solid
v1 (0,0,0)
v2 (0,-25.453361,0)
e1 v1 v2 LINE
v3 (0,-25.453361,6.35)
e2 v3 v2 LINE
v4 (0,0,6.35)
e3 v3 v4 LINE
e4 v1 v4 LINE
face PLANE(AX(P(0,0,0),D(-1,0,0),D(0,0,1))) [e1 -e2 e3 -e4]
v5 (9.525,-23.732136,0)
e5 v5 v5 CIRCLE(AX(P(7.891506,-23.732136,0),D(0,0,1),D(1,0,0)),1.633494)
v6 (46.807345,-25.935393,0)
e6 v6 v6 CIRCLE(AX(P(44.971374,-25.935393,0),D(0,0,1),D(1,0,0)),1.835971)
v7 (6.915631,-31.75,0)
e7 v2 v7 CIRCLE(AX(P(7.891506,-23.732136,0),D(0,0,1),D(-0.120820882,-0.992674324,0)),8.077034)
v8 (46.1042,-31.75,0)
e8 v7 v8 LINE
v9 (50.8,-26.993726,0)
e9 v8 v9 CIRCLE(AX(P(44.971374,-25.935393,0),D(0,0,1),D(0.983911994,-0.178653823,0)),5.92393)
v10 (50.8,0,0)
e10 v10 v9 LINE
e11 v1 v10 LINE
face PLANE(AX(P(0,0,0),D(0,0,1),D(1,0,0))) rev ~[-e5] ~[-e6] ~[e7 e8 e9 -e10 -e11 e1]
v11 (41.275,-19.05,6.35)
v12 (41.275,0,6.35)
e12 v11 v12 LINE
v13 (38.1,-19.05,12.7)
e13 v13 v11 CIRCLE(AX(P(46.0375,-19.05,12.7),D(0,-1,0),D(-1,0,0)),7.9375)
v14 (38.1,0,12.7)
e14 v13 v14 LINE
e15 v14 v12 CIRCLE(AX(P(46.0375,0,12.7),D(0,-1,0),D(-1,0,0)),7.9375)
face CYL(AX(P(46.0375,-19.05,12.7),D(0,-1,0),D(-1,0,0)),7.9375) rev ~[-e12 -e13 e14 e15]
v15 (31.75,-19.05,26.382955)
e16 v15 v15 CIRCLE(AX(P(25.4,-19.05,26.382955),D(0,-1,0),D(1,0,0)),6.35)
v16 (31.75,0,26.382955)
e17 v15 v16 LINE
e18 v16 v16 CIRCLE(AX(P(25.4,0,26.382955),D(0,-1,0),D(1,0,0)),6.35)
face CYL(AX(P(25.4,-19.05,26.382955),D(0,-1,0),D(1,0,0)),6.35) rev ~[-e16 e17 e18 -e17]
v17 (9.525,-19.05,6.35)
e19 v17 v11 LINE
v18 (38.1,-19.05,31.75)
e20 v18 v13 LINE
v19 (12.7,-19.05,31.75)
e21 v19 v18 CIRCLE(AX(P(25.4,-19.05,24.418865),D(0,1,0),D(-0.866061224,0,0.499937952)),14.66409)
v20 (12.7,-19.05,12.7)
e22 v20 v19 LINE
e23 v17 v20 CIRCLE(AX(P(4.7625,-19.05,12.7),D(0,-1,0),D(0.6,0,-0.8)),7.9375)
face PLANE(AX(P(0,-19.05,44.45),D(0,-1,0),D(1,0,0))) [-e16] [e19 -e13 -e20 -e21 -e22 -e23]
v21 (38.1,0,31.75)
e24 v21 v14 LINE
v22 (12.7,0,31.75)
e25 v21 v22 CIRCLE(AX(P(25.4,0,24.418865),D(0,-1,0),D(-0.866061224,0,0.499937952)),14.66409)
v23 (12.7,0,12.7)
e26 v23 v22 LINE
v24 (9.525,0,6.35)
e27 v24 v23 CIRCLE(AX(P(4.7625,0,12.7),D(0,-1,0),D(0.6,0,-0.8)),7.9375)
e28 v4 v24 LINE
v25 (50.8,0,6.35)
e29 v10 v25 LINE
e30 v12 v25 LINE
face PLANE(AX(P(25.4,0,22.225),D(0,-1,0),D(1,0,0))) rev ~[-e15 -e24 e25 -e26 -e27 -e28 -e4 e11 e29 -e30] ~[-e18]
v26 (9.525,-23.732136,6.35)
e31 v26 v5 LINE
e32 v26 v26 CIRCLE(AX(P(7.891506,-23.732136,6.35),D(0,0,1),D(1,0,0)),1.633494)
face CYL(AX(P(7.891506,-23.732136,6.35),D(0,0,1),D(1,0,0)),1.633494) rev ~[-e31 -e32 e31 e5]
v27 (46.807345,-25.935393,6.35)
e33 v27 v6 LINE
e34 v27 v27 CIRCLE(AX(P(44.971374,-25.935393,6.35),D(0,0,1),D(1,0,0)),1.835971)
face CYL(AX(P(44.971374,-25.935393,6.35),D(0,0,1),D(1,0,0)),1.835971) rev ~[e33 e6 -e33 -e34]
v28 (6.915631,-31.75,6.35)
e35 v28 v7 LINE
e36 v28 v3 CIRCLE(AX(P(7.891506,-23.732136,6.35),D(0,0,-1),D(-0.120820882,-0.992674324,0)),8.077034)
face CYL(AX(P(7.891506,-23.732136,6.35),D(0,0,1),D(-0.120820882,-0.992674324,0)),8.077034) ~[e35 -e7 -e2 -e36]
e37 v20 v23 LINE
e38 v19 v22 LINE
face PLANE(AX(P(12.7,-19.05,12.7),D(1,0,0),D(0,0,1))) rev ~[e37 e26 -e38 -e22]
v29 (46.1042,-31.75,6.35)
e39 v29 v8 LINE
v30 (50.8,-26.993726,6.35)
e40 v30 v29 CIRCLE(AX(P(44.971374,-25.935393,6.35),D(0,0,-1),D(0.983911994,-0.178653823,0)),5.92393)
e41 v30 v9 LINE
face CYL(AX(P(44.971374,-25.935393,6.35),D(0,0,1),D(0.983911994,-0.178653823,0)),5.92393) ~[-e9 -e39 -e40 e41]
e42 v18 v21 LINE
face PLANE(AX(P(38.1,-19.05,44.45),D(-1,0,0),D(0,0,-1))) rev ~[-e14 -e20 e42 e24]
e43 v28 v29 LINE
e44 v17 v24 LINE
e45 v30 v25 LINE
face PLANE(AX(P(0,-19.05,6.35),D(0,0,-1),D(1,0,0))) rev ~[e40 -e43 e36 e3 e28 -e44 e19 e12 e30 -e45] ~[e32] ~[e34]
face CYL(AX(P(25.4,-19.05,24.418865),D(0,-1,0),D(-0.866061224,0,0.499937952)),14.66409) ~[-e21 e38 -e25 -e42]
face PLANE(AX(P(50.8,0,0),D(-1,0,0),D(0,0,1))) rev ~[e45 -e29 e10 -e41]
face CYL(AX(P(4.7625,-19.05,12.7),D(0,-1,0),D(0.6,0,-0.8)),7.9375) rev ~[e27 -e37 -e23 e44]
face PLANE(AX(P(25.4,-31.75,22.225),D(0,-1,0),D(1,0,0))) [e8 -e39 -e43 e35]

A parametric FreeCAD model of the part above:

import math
import FreeCAD as App
import Part
import Sketcher
from FreeCAD import Vector
Q = App.Units.Quantity

doc = App.newDocument("Part")
body = doc.addObject("PartDesign::Body", "Body")

# Sketch on XZ plane
sketch1 = body.newObject("Sketcher::SketchObject", "Sketch")
sketch1.AttachmentSupport = (doc.getObject("XZ_Plane"), [""])
sketch1.MapMode = "FlatFace"
sketch1.addGeometry([
    Part.LineSegment(Vector(0, 44, 0), Vector(0, 0, 0)),
    Part.LineSegment(Vector(0, 0, 0), Vector(51, 0, 0)),
    Part.LineSegment(Vector(51, 0, 0), Vector(51, 44, 0)),
    Part.LineSegment(Vector(51, 44, 0), Vector(0, 44, 0)),
], False)
sketch1.addConstraint([
    Sketcher.Constraint("Coincident", 0, 2, 1, 1),
    Sketcher.Constraint("Coincident", 1, 2, 2, 1),
    Sketcher.Constraint("Coincident", 2, 2, 3, 1),
    Sketcher.Constraint("Coincident", 3, 2, 0, 1),
    Sketcher.Constraint("Vertical", 0),
    Sketcher.Constraint("Horizontal", 1),
    Sketcher.Constraint("Vertical", 2),
    Sketcher.Constraint("Horizontal", 3),
    Sketcher.Constraint("Coincident", 0, 2, -1, 1),
    Sketcher.Constraint("DistanceX", 1, 1, 1, 2, Q("2 in")),
    Sketcher.Constraint("DistanceY", 0, 2, 0, 1, Q("1.75 in")),
])
pad1 = body.newObject("PartDesign::Pad", "Pad")
pad1.Profile = sketch1
pad1.Length = Q("1.25 in")

# Sketch on XY plane
sketch2 = body.newObject("Sketcher::SketchObject", "Sketch001")
sketch2.AttachmentSupport = (doc.getObject("XY_Plane"), [""])
sketch2.MapMode = "FlatFace"
sketch2.AttachmentOffset = App.Placement(Vector(0, 0, 1.75 * 25.4), App.Rotation())
sketch2.addGeometry([
    Part.LineSegment(Vector(0, -19, 0), Vector(0, -32, 0)),
    Part.LineSegment(Vector(0, -32, 0), Vector(51, -32, 0)),
    Part.LineSegment(Vector(51, -32, 0), Vector(51, -19, 0)),
    Part.LineSegment(Vector(51, -19, 0), Vector(0, -19, 0)),
], False)
sketch2.addConstraint([
    Sketcher.Constraint("Coincident", 0, 2, 1, 1),
    Sketcher.Constraint("Coincident", 1, 2, 2, 1),
    Sketcher.Constraint("Coincident", 2, 2, 3, 1),
    Sketcher.Constraint("Coincident", 3, 2, 0, 1),
    Sketcher.Constraint("Vertical", 0),
    Sketcher.Constraint("Horizontal", 1),
    Sketcher.Constraint("Vertical", 2),
    Sketcher.Constraint("Horizontal", 3),
    Sketcher.Constraint("PointOnObject", 0, 2, -2),
    Sketcher.Constraint("DistanceX", 1, 1, 1, 2, Q("2 in")),
    Sketcher.Constraint("DistanceY", 0, 2, 0, 1, Q("0.5 in")),
    Sketcher.Constraint("DistanceY", 0, 2, -1, 1, Q("1.25 in")),
])
pocket1 = body.newObject("PartDesign::Pocket", "Pocket")
pocket1.Profile = sketch2
pocket1.Length = Q("1.5 in")

# Sketch on XZ plane
sketch3 = body.newObject("Sketcher::SketchObject", "Sketch002")
sketch3.AttachmentSupport = (doc.getObject("XZ_Plane"), [""])
sketch3.MapMode = "FlatFace"
sketch3.AttachmentOffset = App.Placement(Vector(0, 0, 0.75 * 25.4), App.Rotation())
sketch3.addGeometry([
    Part.LineSegment(Vector(13, 13, 0), Vector(13, 44, 0)),  # 0
    Part.LineSegment(Vector(13, 44, 0), Vector(0, 44, 0)),  # 1
    Part.LineSegment(Vector(0, 44, 0), Vector(0, 6, 0)),  # 2
    Part.LineSegment(Vector(0, 6, 0), Vector(10, 6, 0)),  # 3
    Part.ArcOfCircle(Part.Circle(Vector(5, 13, 0), Vector(0, 0, 1), 8), math.radians(-53), math.radians(0)),  # 4
    Part.LineSegment(Vector(51, 44, 0), Vector(38, 44, 0)),  # 5
    Part.LineSegment(Vector(38, 44, 0), Vector(38, 13, 0)),  # 6
    Part.ArcOfCircle(Part.Circle(Vector(46, 13, 0), Vector(0, 0, 1), 8), math.radians(180), math.radians(233)),  # 7
    Part.LineSegment(Vector(41, 6, 0), Vector(51, 6, 0)),  # 8
    Part.LineSegment(Vector(51, 6, 0), Vector(51, 44, 0)),  # 9
], False)
sketch3.addConstraint([
    Sketcher.Constraint("Coincident", 0, 2, 1, 1),
    Sketcher.Constraint("Coincident", 1, 2, 2, 1),
    Sketcher.Constraint("Coincident", 2, 2, 3, 1),
    Sketcher.Constraint("Coincident", 3, 2, 4, 1),
    Sketcher.Constraint("Tangent", 4, 2, 0, 1),
    Sketcher.Constraint("Coincident", 5, 2, 6, 1),
    Sketcher.Constraint("Tangent", 6, 2, 7, 1),
    Sketcher.Constraint("Coincident", 7, 2, 8, 1),
    Sketcher.Constraint("Coincident", 8, 2, 9, 1),
    Sketcher.Constraint("Coincident", 9, 2, 5, 1),
    Sketcher.Constraint("Vertical", 0),
    Sketcher.Constraint("Horizontal", 1),
    Sketcher.Constraint("Vertical", 2),
    Sketcher.Constraint("Horizontal", 3),
    Sketcher.Constraint("Horizontal", 5),
    Sketcher.Constraint("Vertical", 6),
    Sketcher.Constraint("Horizontal", 8),
    Sketcher.Constraint("Vertical", 9),
    Sketcher.Constraint("Equal", 4, 7),
    Sketcher.Constraint("PointOnObject", 1, 2, -2),
    Sketcher.Constraint("Horizontal", 4, 3, 7, 3),
    Sketcher.Constraint("Horizontal", 1, 2, 5, 2),
    Sketcher.Constraint("Horizontal", 3, 2, 7, 2),
    Sketcher.Constraint("Equal", 1, 5),
    Sketcher.Constraint("DistanceX", 1, 2, 1, 1, Q("0.5 in")),
    Sketcher.Constraint("DistanceY", 2, 2, 2, 1, Q("1.5 in")),
    Sketcher.Constraint("DistanceX", -1, 1, 8, 2, Q("2 in")),
    Sketcher.Constraint("Radius", 4, Q("0.3125 in")),
    Sketcher.Constraint("DistanceY", 0, 1, 0, 2, Q("1.25 in")),
    Sketcher.Constraint("DistanceY", -1, 1, 4, 3, Q("0.5 in")),
])
pocket2 = body.newObject("PartDesign::Pocket", "Pocket001")
pocket2.Profile = sketch3
pocket2.Length = Q("1 in")

# Sketch on XZ plane
sketch4 = body.newObject("Sketcher::SketchObject", "Sketch003")
sketch4.AttachmentSupport = (doc.getObject("XZ_Plane"), [""])
sketch4.MapMode = "FlatFace"
sketch4.AttachmentOffset = App.Placement(Vector(0, 0, 0.75 * 25.4), App.Rotation())
sketch4.addGeometry([
    Part.ArcOfCircle(Part.Circle(Vector(25, 24, 0), Vector(0, 0, 1), 15), math.radians(30), math.radians(150)),
    Part.LineSegment(Vector(38, 32, 0), Vector(38, 44, 0)),
    Part.LineSegment(Vector(38, 44, 0), Vector(13, 44, 0)),
    Part.LineSegment(Vector(13, 44, 0), Vector(13, 32, 0)),
], False)
sketch4.addConstraint([
    Sketcher.Constraint("Coincident", 0, 1, 1, 1),
    Sketcher.Constraint("Coincident", 1, 2, 2, 1),
    Sketcher.Constraint("Coincident", 2, 2, 3, 1),
    Sketcher.Constraint("Coincident", 3, 2, 0, 2),
    Sketcher.Constraint("Vertical", 1),
    Sketcher.Constraint("Horizontal", 2),
    Sketcher.Constraint("Vertical", 3),
    Sketcher.Constraint("Horizontal", 0, 1, 3, 2),
    Sketcher.Constraint("DistanceX", 2, 2, 2, 1, Q("1 in")),
    Sketcher.Constraint("DistanceY", 1, 1, 1, 2, Q("0.5 in")),
    Sketcher.Constraint("DistanceX", -1, 1, 0, 3, Q("1 in")),
    Sketcher.Constraint("DistanceY", -1, 1, 0, 1, Q("1.25 in")),
    Sketcher.Constraint("Radius", 0, Q("14.66409 mm")),
])
pocket3 = body.newObject("PartDesign::Pocket", "Pocket002")
pocket3.Profile = sketch4
pocket3.Length = Q("1 in")

# Sketch on XZ plane
sketch5 = body.newObject("Sketcher::SketchObject", "Sketch004")
sketch5.AttachmentSupport = (doc.getObject("XZ_Plane"), [""])
sketch5.MapMode = "FlatFace"
sketch5.AttachmentOffset = App.Placement(Vector(0, 0, 0.75 * 25.4), App.Rotation())
sketch5.addGeometry(Part.Circle(Vector(25, 26, 0), Vector(0, 0, 1), 6), False)
sketch5.addConstraint([
    Sketcher.Constraint("Diameter", 0, Q("0.5 in")),
    Sketcher.Constraint("DistanceX", -1, 1, 0, 3, Q("1 in")),
    Sketcher.Constraint("DistanceY", -1, 1, 0, 3, Q("26.382955 mm")),
])
pocket4 = body.newObject("PartDesign::Pocket", "Pocket003")
pocket4.Profile = sketch5
pocket4.Length = Q("1 in")

# Sketch on XY plane
sketch6 = body.newObject("Sketcher::SketchObject", "Sketch005")
sketch6.AttachmentSupport = (doc.getObject("XY_Plane"), [""])
sketch6.MapMode = "FlatFace"
sketch6.AttachmentOffset = App.Placement(Vector(0, 0, 0.25 * 25.4), App.Rotation())
sketch6.addGeometry([
    Part.ArcOfCircle(Part.Circle(Vector(7.9, -23.7, 0), Vector(0, 0, 1), 8.1), math.radians(-168), math.radians(-97)),  # 0
    Part.LineSegment(Vector(0, -25.5, 0), Vector(0, -31.8, 0)),  # 1
    Part.LineSegment(Vector(0, -31.8, 0), Vector(6.9, -31.8, 0)),  # 2
    Part.ArcOfCircle(Part.Circle(Vector(45, -25.9, 0), Vector(0, 0, 1), 5.9), math.radians(-79), math.radians(-10)),  # 3
    Part.LineSegment(Vector(46.1, -31.8, 0), Vector(50.8, -31.8, 0)),  # 4
    Part.LineSegment(Vector(50.8, -31.8, 0), Vector(50.8, -27, 0)),  # 5
], False)
sketch6.addConstraint([
    Sketcher.Constraint("Coincident", 0, 1, 1, 1),
    Sketcher.Constraint("Coincident", 1, 2, 2, 1),
    Sketcher.Constraint("Coincident", 2, 2, 0, 2),
    Sketcher.Constraint("Coincident", 3, 1, 4, 1),
    Sketcher.Constraint("Coincident", 4, 2, 5, 1),
    Sketcher.Constraint("Coincident", 5, 2, 3, 2),
    Sketcher.Constraint("Vertical", 1),
    Sketcher.Constraint("Horizontal", 2),
    Sketcher.Constraint("Horizontal", 4),
    Sketcher.Constraint("Vertical", 5),
    Sketcher.Constraint("PointOnObject", 0, 1, -2),
    Sketcher.Constraint("Horizontal", 2, 2, 3, 1),
    Sketcher.Constraint("DistanceX", -1, 1, 4, 2, Q("2 in")),
    Sketcher.Constraint("DistanceY", 1, 2, -1, 1, Q("1.25 in")),
    Sketcher.Constraint("Radius", 3, Q("5.92393 mm")),
    Sketcher.Constraint("DistanceX", 4, 1, 4, 2, Q("4.6958 mm")),
    Sketcher.Constraint("Radius", 0, Q("8.077034 mm")),
    Sketcher.Constraint("DistanceX", 2, 1, 2, 2, Q("6.915631 mm")),
    Sketcher.Constraint("DistanceY", 1, 2, 1, 1, Q("6.296639 mm")),
    Sketcher.Constraint("DistanceY", 5, 1, 5, 2, Q("4.756274 mm")),
])
pocket5 = body.newObject("PartDesign::Pocket", "Pocket004")
pocket5.Profile = sketch6
pocket5.Length = Q("1 in")

# Sketch on XY plane
sketch7 = body.newObject("Sketcher::SketchObject", "Sketch006")
sketch7.AttachmentSupport = (doc.getObject("XY_Plane"), [""])
sketch7.MapMode = "FlatFace"
sketch7.AttachmentOffset = App.Placement(Vector(0, 0, 0.25 * 25.4), App.Rotation())
sketch7.addGeometry([
    Part.Circle(Vector(45, -25.9, 0), Vector(0, 0, 1), 1.8),
    Part.Circle(Vector(7.9, -23.7, 0), Vector(0, 0, 1), 1.6),
], False)
sketch7.addConstraint([
    Sketcher.Constraint("Diameter", 0, Q("3.671941 mm")),
    Sketcher.Constraint("Diameter", 1, Q("3.266989 mm")),
    Sketcher.Constraint("DistanceX", 1, 3, 0, 3, Q("37.079868 mm")),
    Sketcher.Constraint("DistanceX", -1, 1, 0, 3, Q("44.971374 mm")),
    Sketcher.Constraint("DistanceY", 0, 3, -1, 1, Q("25.935393 mm")),
    Sketcher.Constraint("DistanceY", 1, 3, -1, 1, Q("23.732136 mm")),
])
pocket6 = body.newObject("PartDesign::Pocket", "Pocket005")
pocket6.Profile = sketch7
pocket6.Length = Q("1 in")

doc.recompute()
